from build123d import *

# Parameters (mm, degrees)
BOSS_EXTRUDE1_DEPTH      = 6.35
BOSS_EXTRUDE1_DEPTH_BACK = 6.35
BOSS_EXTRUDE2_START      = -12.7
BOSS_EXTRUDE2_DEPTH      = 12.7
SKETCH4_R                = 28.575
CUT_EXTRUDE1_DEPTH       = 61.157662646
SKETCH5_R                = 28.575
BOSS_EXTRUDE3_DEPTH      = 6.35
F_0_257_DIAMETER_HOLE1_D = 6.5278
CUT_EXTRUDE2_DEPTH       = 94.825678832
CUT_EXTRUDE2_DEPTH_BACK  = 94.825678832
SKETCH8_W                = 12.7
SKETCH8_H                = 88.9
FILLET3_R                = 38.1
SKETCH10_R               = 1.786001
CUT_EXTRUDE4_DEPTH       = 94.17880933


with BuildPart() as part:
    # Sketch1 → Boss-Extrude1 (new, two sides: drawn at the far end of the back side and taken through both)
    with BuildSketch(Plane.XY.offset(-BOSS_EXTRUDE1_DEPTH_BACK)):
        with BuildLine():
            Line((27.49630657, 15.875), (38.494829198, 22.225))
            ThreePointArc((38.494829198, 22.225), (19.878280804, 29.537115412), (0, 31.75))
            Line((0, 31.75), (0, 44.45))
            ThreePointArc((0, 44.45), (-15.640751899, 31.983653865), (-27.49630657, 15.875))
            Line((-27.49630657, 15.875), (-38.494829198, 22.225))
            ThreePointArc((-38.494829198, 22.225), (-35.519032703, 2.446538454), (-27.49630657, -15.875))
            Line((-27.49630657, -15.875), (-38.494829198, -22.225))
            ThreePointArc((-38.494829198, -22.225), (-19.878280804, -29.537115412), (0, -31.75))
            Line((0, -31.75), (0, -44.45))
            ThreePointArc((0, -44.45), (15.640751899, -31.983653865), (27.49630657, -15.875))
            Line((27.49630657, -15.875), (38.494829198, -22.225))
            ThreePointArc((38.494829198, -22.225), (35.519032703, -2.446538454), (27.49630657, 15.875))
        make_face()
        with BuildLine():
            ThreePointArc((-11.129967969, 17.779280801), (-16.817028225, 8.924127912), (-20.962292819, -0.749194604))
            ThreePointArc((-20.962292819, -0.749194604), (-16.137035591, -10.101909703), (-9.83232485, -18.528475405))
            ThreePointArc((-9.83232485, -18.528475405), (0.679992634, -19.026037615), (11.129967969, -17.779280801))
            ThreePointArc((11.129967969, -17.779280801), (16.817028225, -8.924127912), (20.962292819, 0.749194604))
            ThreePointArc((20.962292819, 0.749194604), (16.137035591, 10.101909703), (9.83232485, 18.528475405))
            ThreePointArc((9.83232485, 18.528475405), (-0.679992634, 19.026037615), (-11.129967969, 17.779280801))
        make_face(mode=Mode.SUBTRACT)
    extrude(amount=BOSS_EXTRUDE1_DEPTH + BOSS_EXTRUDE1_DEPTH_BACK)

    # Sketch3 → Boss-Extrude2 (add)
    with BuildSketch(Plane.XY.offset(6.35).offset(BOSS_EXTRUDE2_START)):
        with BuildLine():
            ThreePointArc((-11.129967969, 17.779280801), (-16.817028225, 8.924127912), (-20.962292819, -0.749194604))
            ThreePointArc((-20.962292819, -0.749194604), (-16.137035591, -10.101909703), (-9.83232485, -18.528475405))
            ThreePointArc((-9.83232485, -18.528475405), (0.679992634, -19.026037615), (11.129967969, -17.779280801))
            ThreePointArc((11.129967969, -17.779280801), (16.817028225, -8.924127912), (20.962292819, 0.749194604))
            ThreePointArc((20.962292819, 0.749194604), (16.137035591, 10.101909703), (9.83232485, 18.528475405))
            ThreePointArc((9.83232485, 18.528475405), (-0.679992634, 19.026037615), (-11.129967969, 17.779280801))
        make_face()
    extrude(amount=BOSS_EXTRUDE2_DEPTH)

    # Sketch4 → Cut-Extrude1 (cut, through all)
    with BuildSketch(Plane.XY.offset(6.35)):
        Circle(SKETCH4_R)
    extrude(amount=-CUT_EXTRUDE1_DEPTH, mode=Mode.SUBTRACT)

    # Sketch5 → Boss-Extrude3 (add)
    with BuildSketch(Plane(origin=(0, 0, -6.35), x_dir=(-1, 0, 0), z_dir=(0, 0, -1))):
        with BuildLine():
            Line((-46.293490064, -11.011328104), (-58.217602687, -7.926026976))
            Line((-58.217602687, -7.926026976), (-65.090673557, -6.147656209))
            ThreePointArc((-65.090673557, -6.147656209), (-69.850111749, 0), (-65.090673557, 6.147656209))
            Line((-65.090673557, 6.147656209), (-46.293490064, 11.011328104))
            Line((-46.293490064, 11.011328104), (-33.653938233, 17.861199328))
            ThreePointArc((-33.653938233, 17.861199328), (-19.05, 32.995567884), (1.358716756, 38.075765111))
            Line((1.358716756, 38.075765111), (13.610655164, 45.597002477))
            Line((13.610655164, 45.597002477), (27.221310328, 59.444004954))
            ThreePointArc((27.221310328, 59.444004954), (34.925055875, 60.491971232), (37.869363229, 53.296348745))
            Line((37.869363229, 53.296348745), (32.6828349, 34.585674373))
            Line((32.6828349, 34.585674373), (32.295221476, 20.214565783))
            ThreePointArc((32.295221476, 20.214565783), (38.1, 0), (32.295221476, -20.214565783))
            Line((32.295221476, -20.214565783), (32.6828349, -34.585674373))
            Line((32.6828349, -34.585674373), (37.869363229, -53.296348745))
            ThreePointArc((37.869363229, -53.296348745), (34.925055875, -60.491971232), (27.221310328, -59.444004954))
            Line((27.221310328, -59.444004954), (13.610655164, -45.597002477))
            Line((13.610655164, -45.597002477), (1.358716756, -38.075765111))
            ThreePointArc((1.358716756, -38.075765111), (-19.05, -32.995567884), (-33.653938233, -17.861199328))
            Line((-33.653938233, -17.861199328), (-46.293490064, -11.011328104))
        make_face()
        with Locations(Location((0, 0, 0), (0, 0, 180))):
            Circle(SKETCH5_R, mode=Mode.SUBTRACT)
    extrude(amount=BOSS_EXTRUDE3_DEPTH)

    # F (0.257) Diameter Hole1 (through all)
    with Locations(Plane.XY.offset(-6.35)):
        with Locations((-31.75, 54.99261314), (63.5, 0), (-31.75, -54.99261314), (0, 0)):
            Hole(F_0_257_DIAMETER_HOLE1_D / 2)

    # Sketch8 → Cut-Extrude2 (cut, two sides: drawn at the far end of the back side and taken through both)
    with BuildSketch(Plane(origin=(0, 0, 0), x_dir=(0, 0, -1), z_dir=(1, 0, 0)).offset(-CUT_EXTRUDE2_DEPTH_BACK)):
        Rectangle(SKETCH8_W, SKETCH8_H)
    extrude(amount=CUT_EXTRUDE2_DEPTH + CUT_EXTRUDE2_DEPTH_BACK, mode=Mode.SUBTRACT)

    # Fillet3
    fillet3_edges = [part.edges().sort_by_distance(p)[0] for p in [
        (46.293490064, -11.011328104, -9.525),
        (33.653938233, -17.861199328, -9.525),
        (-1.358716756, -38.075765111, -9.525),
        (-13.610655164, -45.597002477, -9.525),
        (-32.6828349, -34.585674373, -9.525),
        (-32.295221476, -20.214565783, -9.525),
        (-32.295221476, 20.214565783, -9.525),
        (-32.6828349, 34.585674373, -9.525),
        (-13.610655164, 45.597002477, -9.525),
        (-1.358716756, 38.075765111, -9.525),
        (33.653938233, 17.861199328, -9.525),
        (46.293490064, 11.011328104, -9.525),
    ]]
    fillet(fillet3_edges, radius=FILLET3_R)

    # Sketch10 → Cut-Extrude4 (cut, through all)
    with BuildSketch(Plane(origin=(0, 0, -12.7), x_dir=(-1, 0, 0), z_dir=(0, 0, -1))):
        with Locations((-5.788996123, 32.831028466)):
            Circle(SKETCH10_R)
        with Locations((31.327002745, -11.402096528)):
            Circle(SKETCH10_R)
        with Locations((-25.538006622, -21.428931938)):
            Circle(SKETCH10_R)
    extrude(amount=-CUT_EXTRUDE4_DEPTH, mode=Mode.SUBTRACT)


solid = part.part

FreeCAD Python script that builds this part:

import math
import FreeCAD as App
import Part
import Sketcher

V = App.Vector
Q = App.Units.Quantity


def edges_at(feature, points):
    """Names of the edges that pass closest to the given points."""
    edges = feature.Shape.Edges
    near = lambda p: min(range(len(edges)), key=lambda i: edges[i].distToShape(Part.Vertex(*p))[0])
    return sorted({f"Edge{near(p) + 1}" for p in points})

doc = App.newDocument("Part")
body = doc.addObject("PartDesign::Body", "Body")

# Sketch on XY plane
sketch1 = doc.addObject("Sketcher::SketchObject", "Sketch")
body.addObject(sketch1)
sketch1.AttachmentSupport = (doc.XY_Plane, [""])
sketch1.MapMode = "FlatFace"
sketch1.addGeometry([
    Part.LineSegment(V(27, 16, 0), V(38, 22, 0)),  # 0
    Part.ArcOfCircle(Part.Circle(V(2, -44, 0), V(0, 0, 1), 76), math.radians(61), math.radians(91)),  # 1
    Part.LineSegment(V(0, 32, 0), V(0, 44, 0)),  # 2
    Part.ArcOfCircle(Part.Circle(V(39, -21, 0), V(0, 0, 1), 76), math.radians(121), math.radians(151)),  # 3
    Part.LineSegment(V(-27, 16, 0), V(-38, 22, 0)),  # 4
    Part.ArcOfCircle(Part.Circle(V(38, 24, 0), V(0, 0, 1), 76), math.radians(-179), math.radians(-149)),  # 5
    Part.LineSegment(V(-27, -16, 0), V(-38, -22, 0)),  # 6
    Part.ArcOfCircle(Part.Circle(V(-2, 44, 0), V(0, 0, 1), 76), math.radians(-119), math.radians(-89)),  # 7
    Part.LineSegment(V(0, -32, 0), V(0, -44, 0)),  # 8
    Part.ArcOfCircle(Part.Circle(V(-39, 21, 0), V(0, 0, 1), 76), math.radians(-59), math.radians(-29)),  # 9
    Part.LineSegment(V(27, -16, 0), V(38, -22, 0)),  # 10
    Part.ArcOfCircle(Part.Circle(V(-38, -24, 0), V(0, 0, 1), 76), math.radians(1), math.radians(31)),  # 11
    Part.ArcOfCircle(Part.Circle(V(39, -21, 0), V(0, 0, 1), 63), math.radians(142.53), math.radians(161.56)),  # 12
    Part.ArcOfCircle(Part.Circle(V(2, -44, 0), V(0, 0, 1), 63), math.radians(82.53), math.radians(101.56)),  # 13
    Part.ArcOfCircle(Part.Circle(V(-38, -24, 0), V(0, 0, 1), 63), math.radians(22.53), math.radians(41.56)),  # 14
    Part.ArcOfCircle(Part.Circle(V(-39, 21, 0), V(0, 0, 1), 63), math.radians(-37.47), math.radians(-18.44)),  # 15
    Part.ArcOfCircle(Part.Circle(V(-2, 44, 0), V(0, 0, 1), 63), math.radians(-97.47), math.radians(-78.44)),  # 16
    Part.ArcOfCircle(Part.Circle(V(38, 24, 0), V(0, 0, 1), 63), math.radians(-157.47), math.radians(-138.44)),  # 17
], False)
sketch1.addConstraint([
    Sketcher.Constraint("Coincident", 0, 2, 1, 1),
    Sketcher.Constraint("Coincident", 1, 2, 2, 1),
    Sketcher.Constraint("Coincident", 2, 2, 3, 1),
    Sketcher.Constraint("Coincident", 3, 2, 4, 1),
    Sketcher.Constraint("Coincident", 4, 2, 5, 1),
    Sketcher.Constraint("Coincident", 5, 2, 6, 1),
    Sketcher.Constraint("Coincident", 6, 2, 7, 1),
    Sketcher.Constraint("Coincident", 7, 2, 8, 1),
    Sketcher.Constraint("Coincident", 8, 2, 9, 1),
    Sketcher.Constraint("Coincident", 9, 2, 10, 1),
    Sketcher.Constraint("Coincident", 10, 2, 11, 1),
    Sketcher.Constraint("Coincident", 11, 2, 0, 1),
    Sketcher.Constraint("Coincident", 12, 1, 13, 2),
    Sketcher.Constraint("Coincident", 13, 1, 14, 2),
    Sketcher.Constraint("Coincident", 14, 1, 15, 2),
    Sketcher.Constraint("Coincident", 15, 1, 16, 2),
    Sketcher.Constraint("Coincident", 16, 1, 17, 2),
    Sketcher.Constraint("Coincident", 17, 1, 12, 2),
    Sketcher.Constraint("Vertical", 2),
    Sketcher.Constraint("Vertical", 8),
    Sketcher.Constraint("Coincident", 12, 3, 3, 3),
    Sketcher.Constraint("Coincident", 13, 3, 1, 3),
    Sketcher.Constraint("Coincident", 14, 3, 11, 3),
    Sketcher.Constraint("Coincident", 15, 3, 9, 3),
    Sketcher.Constraint("Coincident", 16, 3, 7, 3),
    Sketcher.Constraint("Coincident", 17, 3, 5, 3),
    Sketcher.Constraint("Equal", 1, 3),
    Sketcher.Constraint("Equal", 3, 5),
    Sketcher.Constraint("Equal", 5, 7),
    Sketcher.Constraint("Equal", 7, 9),
    Sketcher.Constraint("Equal", 9, 11),
    Sketcher.Constraint("Equal", 12, 13),
    Sketcher.Constraint("Equal", 13, 14),
    Sketcher.Constraint("Equal", 14, 15),
    Sketcher.Constraint("Equal", 15, 16),
    Sketcher.Constraint("Equal", 16, 17),
    Sketcher.Constraint("Symmetric", 1, 3, 7, 3, -1, 1),
    Sketcher.Constraint("Symmetric", 3, 3, 9, 3, -1, 1),
    Sketcher.Constraint("Symmetric", 5, 3, 11, 3, -1, 1),
    Sketcher.Constraint("Symmetric", 0, 2, 4, 2, -2),
    Sketcher.Constraint("Symmetric", 5, 2, 9, 2, -2),
    Sketcher.Constraint("Symmetric", 6, 2, 10, 2, -2),
    Sketcher.Constraint("Symmetric", 1, 2, 7, 2, -1),
    Sketcher.Constraint("Parallel", 0, 6),
    Sketcher.Constraint("Parallel", 4, 10),
    Sketcher.Constraint("DistanceY", 2, 1, 2, 2, Q("0.5 in")),
    Sketcher.Constraint("Angle", 0, Q("30 deg")),
    Sketcher.Constraint("Distance", 0, Q("0.5 in")),
    Sketcher.Constraint("DistanceY", 6, 2, 3, 2, Q("1.5 in")),
    Sketcher.Constraint("DistanceY", -1, 1, 1, 2, Q("1.25 in")),
    Sketcher.Constraint("Radius", 1, 76.154973),
    Sketcher.Constraint("Radius", 12, 63.454973),
    Sketcher.Constraint("DistanceX", -1, 1, 5, 3, 37.648299),
])
pad1 = doc.addObject("PartDesign::Pad", "Pad")
body.addObject(pad1)
pad1.Profile = sketch1
pad1.Type = "TwoLengths"
pad1.Length = Q("0.25 in")
pad1.Length2 = Q("0.25 in")

# Sketch on XY plane
sketch2 = doc.addObject("Sketcher::SketchObject", "Sketch001")
body.addObject(sketch2)
sketch2.AttachmentSupport = (doc.XY_Plane, [""])
sketch2.MapMode = "FlatFace"
sketch2.AttachmentOffset = App.Placement(V(0, 0, -0.25 * 25.4), App.Rotation())
sketch2.addGeometry([
    Part.ArcOfCircle(Part.Circle(V(39, -21, 0), V(0, 0, 1), 63), math.radians(142.53), math.radians(161.56)),  # 0
    Part.ArcOfCircle(Part.Circle(V(38, 24, 0), V(0, 0, 1), 63), math.radians(-157.47), math.radians(-138.44)),  # 1
    Part.ArcOfCircle(Part.Circle(V(-2, 44, 0), V(0, 0, 1), 63), math.radians(-97.47), math.radians(-78.44)),  # 2
    Part.ArcOfCircle(Part.Circle(V(-39, 21, 0), V(0, 0, 1), 63), math.radians(-37.47), math.radians(-18.44)),  # 3
    Part.ArcOfCircle(Part.Circle(V(-38, -24, 0), V(0, 0, 1), 63), math.radians(22.53), math.radians(41.56)),  # 4
    Part.ArcOfCircle(Part.Circle(V(2, -44, 0), V(0, 0, 1), 63), math.radians(82.53), math.radians(101.56)),  # 5
], False)
sketch2.addConstraint([
    Sketcher.Constraint("Coincident", 0, 2, 1, 1),
    Sketcher.Constraint("Coincident", 1, 2, 2, 1),
    Sketcher.Constraint("Coincident", 2, 2, 3, 1),
    Sketcher.Constraint("Coincident", 3, 2, 4, 1),
    Sketcher.Constraint("Coincident", 4, 2, 5, 1),
    Sketcher.Constraint("Coincident", 5, 2, 0, 1),
    Sketcher.Constraint("Equal", 0, 1),
    Sketcher.Constraint("Equal", 1, 2),
    Sketcher.Constraint("Equal", 2, 3),
    Sketcher.Constraint("Equal", 3, 4),
    Sketcher.Constraint("Equal", 4, 5),
    Sketcher.Constraint("Symmetric", 0, 3, 3, 3, -1, 1),
    Sketcher.Constraint("Symmetric", 1, 3, 4, 3, -1, 1),
    Sketcher.Constraint("Symmetric", 2, 3, 5, 3, -1, 1),
    Sketcher.Constraint("Radius", 0, 63.454973),
    Sketcher.Constraint("DistanceX", -1, 1, 1, 3, 37.648299),
    Sketcher.Constraint("DistanceX", 3, 3, 2, 3, 37.648299),
    Sketcher.Constraint("DistanceY", 0, 3, -1, 1, 20.820319),
    Sketcher.Constraint("DistanceY", 2, 2, -1, 1, 17.779281),
    Sketcher.Constraint("DistanceY", 1, 3, 2, 3, 20.820319),
    Sketcher.Constraint("DistanceX", 4, 3, 2, 3, 36.061851),
])
pad2 = doc.addObject("PartDesign::Pad", "Pad001")
body.addObject(pad2)
pad2.Profile = sketch2
pad2.Length = Q("0.5 in")

# Sketch on XY plane
sketch3 = doc.addObject("Sketcher::SketchObject", "Sketch002")
body.addObject(sketch3)
sketch3.AttachmentSupport = (doc.XY_Plane, [""])
sketch3.MapMode = "FlatFace"
sketch3.AttachmentOffset = App.Placement(V(0, 0, 0.25 * 25.4), App.Rotation())
sketch3.addGeometry(Part.Circle(V(0, 0, 0), V(0, 0, 1), 29), False)
sketch3.addConstraint([
    Sketcher.Constraint("Coincident", 0, 3, -1, 1),
    Sketcher.Constraint("Diameter", 0, Q("2.25 in")),
])
pocket1 = doc.addObject("PartDesign::Pocket", "Pocket")
body.addObject(pocket1)
pocket1.Profile = sketch3
pocket1.Type = "ThroughAll"

# Sketch on XY plane
sketch4 = doc.addObject("Sketcher::SketchObject", "Sketch003")
body.addObject(sketch4)
sketch4.AttachmentSupport = (doc.XY_Plane, [""])
sketch4.MapMode = "FlatFace"
sketch4.AttachmentOffset = App.Placement(V(0, 0, -0.25 * 25.4), App.Rotation())
sketch4.addGeometry([
    Part.LineSegment(V(58, -8, 0), V(46, -11, 0)),  # 0
    Part.LineSegment(V(46, -11, 0), V(34, -18, 0)),  # 1
    Part.ArcOfCircle(Part.Circle(V(0, 0, 0), V(0, 0, 1), 38), math.radians(-92), math.radians(-28)),  # 2
    Part.LineSegment(V(-1, -38, 0), V(-14, -46, 0)),  # 3
    Part.LineSegment(V(-14, -46, 0), V(-27, -59, 0)),  # 4
    Part.ArcOfCircle(Part.Circle(V(-32, -55, 0), V(0, 0, 1), 6), math.radians(165), math.radians(315)),  # 5
    Part.LineSegment(V(-38, -53, 0), V(-33, -35, 0)),  # 6
    Part.LineSegment(V(-33, -35, 0), V(-32, -20, 0)),  # 7
    Part.ArcOfCircle(Part.Circle(V(0, 0, 0), V(0, 0, 1), 38), math.radians(148), math.radians(212)),  # 8
    Part.LineSegment(V(-32, 20, 0), V(-33, 35, 0)),  # 9
    Part.LineSegment(V(-33, 35, 0), V(-38, 53, 0)),  # 10
    Part.ArcOfCircle(Part.Circle(V(-32, 55, 0), V(0, 0, 1), 6), math.radians(45), math.radians(195)),  # 11
    Part.LineSegment(V(-27, 59, 0), V(-14, 46, 0)),  # 12
    Part.LineSegment(V(-14, 46, 0), V(-1, 38, 0)),  # 13
    Part.ArcOfCircle(Part.Circle(V(0, 0, 0), V(0, 0, 1), 38), math.radians(28), math.radians(92)),  # 14
    Part.LineSegment(V(34, 18, 0), V(46, 11, 0)),  # 15
    Part.LineSegment(V(46, 11, 0), V(65, 6, 0)),  # 16
    Part.ArcOfCircle(Part.Circle(V(64, 0, 0), V(0, 0, 1), 6), math.radians(-75), math.radians(75)),  # 17
    Part.LineSegment(V(65, -6, 0), V(58, -8, 0)),  # 18
    Part.Circle(V(0, 0, 0), V(0, 0, 1), 29),  # 19
], False)
sketch4.addConstraint([
    Sketcher.Constraint("Coincident", 0, 2, 1, 1),
    Sketcher.Constraint("Coincident", 1, 2, 2, 2),
    Sketcher.Constraint("Coincident", 2, 1, 3, 1),
    Sketcher.Constraint("Coincident", 3, 2, 4, 1),
    Sketcher.Constraint("Tangent", 4, 2, 5, 2),
    Sketcher.Constraint("Tangent", 5, 1, 6, 1),
    Sketcher.Constraint("Coincident", 6, 2, 7, 1),
    Sketcher.Constraint("Coincident", 7, 2, 8, 2),
    Sketcher.Constraint("Coincident", 8, 1, 9, 1),
    Sketcher.Constraint("Coincident", 9, 2, 10, 1),
    Sketcher.Constraint("Tangent", 10, 2, 11, 2),
    Sketcher.Constraint("Tangent", 11, 1, 12, 1),
    Sketcher.Constraint("Coincident", 12, 2, 13, 1),
    Sketcher.Constraint("Coincident", 13, 2, 14, 2),
    Sketcher.Constraint("Coincident", 14, 1, 15, 1),
    Sketcher.Constraint("Coincident", 15, 2, 16, 1),
    Sketcher.Constraint("Tangent", 16, 2, 17, 2),
    Sketcher.Constraint("Tangent", 17, 1, 18, 1),
    Sketcher.Constraint("Coincident", 18, 2, 0, 1),
    Sketcher.Constraint("Coincident", 2, 3, -1, 1),
    Sketcher.Constraint("Coincident", 8, 3, -1, 1),
    Sketcher.Constraint("Coincident", 14, 3, -1, 1),
    Sketcher.Constraint("Coincident", 19, 3, -1, 1),
    Sketcher.Constraint("Equal", 2, 8),
    Sketcher.Constraint("Equal", 5, 11),
    Sketcher.Constraint("Equal", 8, 14),
    Sketcher.Constraint("Equal", 11, 17),
    Sketcher.Constraint("Symmetric", 5, 3, 11, 3, -1),
    Sketcher.Constraint("Symmetric", 6, 2, 9, 2, -1),
    Sketcher.Constraint("Symmetric", 3, 2, 12, 2, -1),
    Sketcher.Constraint("Symmetric", 0, 2, 15, 2, -1),
    Sketcher.Constraint("Symmetric", 16, 2, 17, 1, -1),
    Sketcher.Constraint("Vertical", 7, 2, 8, 1),
    Sketcher.Constraint("Vertical", 2, 1, 13, 2),
    Sketcher.Constraint("Vertical", 1, 2, 14, 1),
    Sketcher.Constraint("Equal", 1, 3),
    Sketcher.Constraint("Equal", 4, 6),
    Sketcher.Constraint("Equal", 3, 7),
    Sketcher.Constraint("Equal", 12, 16),
    Sketcher.Constraint("Radius", 2, Q("1.5 in")),
    Sketcher.Constraint("Diameter", 19, Q("2.25 in")),
    Sketcher.Constraint("DistanceX", -1, 1, 17, 3, Q("2.5 in")),
    Sketcher.Constraint("DistanceX", 5, 3, -1, 1, Q("1.25 in")),
    Sketcher.Constraint("Radius", 5, 6.350112),
    Sketcher.Constraint("Distance", 0, 12.316799),
    Sketcher.Constraint("DistanceY", 1, 2, -1, 1, 17.861199),
    Sketcher.Constraint("DistanceY", 2, 1, 7, 2, 17.861199),
    Sketcher.Constraint("DistanceY", 0, 2, 18, 2, 3.085301),
    Sketcher.Constraint("DistanceX", -1, 1, 0, 2, 46.29349),
    Sketcher.Constraint("DistanceX", 4, 2, -1, 1, 27.22131),
    Sketcher.Constraint("DistanceY", 5, 1, -1, 1, 53.296349),
])
pad3 = doc.addObject("PartDesign::Pad", "Pad002")
body.addObject(pad3)
pad3.Profile = sketch4
pad3.Length = Q("0.25 in")
pad3.Reversed = True

# Sketch on XY plane
sketch5 = doc.addObject("Sketcher::SketchObject", "Sketch004")
body.addObject(sketch5)
sketch5.AttachmentSupport = (doc.XY_Plane, [""])
sketch5.MapMode = "FlatFace"
sketch5.AttachmentOffset = App.Placement(V(0, 0, -0.25 * 25.4), App.Rotation())
sketch5.addGeometry([
    Part.Circle(V(-31.8, 55, 0), V(0, 0, 1), 3.3),
    Part.Circle(V(63.5, 0, 0), V(0, 0, 1), 3.3),
    Part.Circle(V(-31.8, -55, 0), V(0, 0, 1), 3.3),
    Part.Circle(V(0, 0, 0), V(0, 0, 1), 3.3),
], False)
sketch5.addConstraint([
    Sketcher.Constraint("Coincident", 3, 3, -1, 1),
    Sketcher.Constraint("Equal", 0, 1),
    Sketcher.Constraint("Equal", 1, 2),
    Sketcher.Constraint("Equal", 2, 3),
    Sketcher.Constraint("Symmetric", 0, 3, 2, 3, -1),
    Sketcher.Constraint("PointOnObject", 1, 3, -1),
    Sketcher.Constraint("Diameter", 0, Q("0.257 in")),
    Sketcher.Constraint("DistanceX", -1, 1, 1, 3, Q("2.5 in")),
    Sketcher.Constraint("DistanceX", 0, 3, -1, 1, Q("1.25 in")),
    Sketcher.Constraint("DistanceY", -1, 1, 0, 3, 54.992613),
])
doc.recompute()
hole = doc.addObject("PartDesign::Hole", "Hole")
body.addObject(hole)
hole.Profile = sketch5
hole.ThreadType = "None"
hole.Diameter = Q("0.257 in")
hole.DepthType = "ThroughAll"

# Sketch on YZ plane
sketch6 = doc.addObject("Sketcher::SketchObject", "Sketch005")
body.addObject(sketch6)
sketch6.AttachmentSupport = (doc.YZ_Plane, [""])
sketch6.MapMode = "FlatFace"
sketch6.addGeometry([
    Part.LineSegment(V(44, 6, 0), V(-44, 6, 0)),
    Part.LineSegment(V(-44, 6, 0), V(-44, -6, 0)),
    Part.LineSegment(V(-44, -6, 0), V(44, -6, 0)),
    Part.LineSegment(V(44, -6, 0), V(44, 6, 0)),
], False)
sketch6.addConstraint([
    Sketcher.Constraint("Coincident", 0, 2, 1, 1),
    Sketcher.Constraint("Coincident", 1, 2, 2, 1),
    Sketcher.Constraint("Coincident", 2, 2, 3, 1),
    Sketcher.Constraint("Coincident", 3, 2, 0, 1),
    Sketcher.Constraint("Horizontal", 0),
    Sketcher.Constraint("Vertical", 1),
    Sketcher.Constraint("Horizontal", 2),
    Sketcher.Constraint("Vertical", 3),
    Sketcher.Constraint("Symmetric", 0, 2, 2, 2, -1, 1),
    Sketcher.Constraint("DistanceX", 0, 2, 0, 1, Q("3.5 in")),
    Sketcher.Constraint("DistanceY", 1, 2, 1, 1, Q("0.5 in")),
])
pocket2 = doc.addObject("PartDesign::Pocket", "Pocket001")
body.addObject(pocket2)
pocket2.Profile = sketch6
pocket2.Type = "ThroughAll"
pocket2.Midplane = True
doc.recompute()

fillet = doc.addObject("PartDesign::Fillet", "Fillet")
body.addObject(fillet)
fillet.Base = (pocket2, edges_at(pocket2, [
    (46.293, -11.011, -9.525),
    (33.654, -17.861, -9.525),
    (-1.359, -38.076, -9.525),
    (-13.611, -45.597, -9.525),
    (-32.683, -34.586, -9.525),
    (-32.295, -20.215, -9.525),
    (-32.295, 20.215, -9.525),
    (-32.683, 34.586, -9.525),
    (-13.611, 45.597, -9.525),
    (-1.359, 38.076, -9.525),
    (33.654, 17.861, -9.525),
    (46.293, 11.011, -9.525),
]))
fillet.Radius = Q("1.5 in")

# Sketch on XY plane
sketch7 = doc.addObject("Sketcher::SketchObject", "Sketch006")
body.addObject(sketch7)
sketch7.AttachmentSupport = (doc.XY_Plane, [""])
sketch7.MapMode = "FlatFace"
sketch7.AttachmentOffset = App.Placement(V(0, 0, -0.5 * 25.4), App.Rotation())
sketch7.addGeometry([
    Part.Circle(V(5.8, 32.8, 0), V(0, 0, 1), 1.8),
    Part.Circle(V(-31.3, -11.4, 0), V(0, 0, 1), 1.8),
    Part.Circle(V(25.5, -21.4, 0), V(0, 0, 1), 1.8),
], False)
sketch7.addConstraint([
    Sketcher.Constraint("Equal", 0, 1),
    Sketcher.Constraint("Equal", 1, 2),
    Sketcher.Constraint("Diameter", 0, 3.572002),
    Sketcher.Constraint("DistanceX", 1, 3, 0, 3, 37.115999),
    Sketcher.Constraint("DistanceY", -1, 1, 0, 3, 32.831028),
    Sketcher.Constraint("DistanceY", 2, 3, -1, 1, 21.428932),
    Sketcher.Constraint("DistanceX", 1, 3, 2, 3, 56.865009),
    Sketcher.Constraint("DistanceX", -1, 1, 0, 3, 5.788996),
    Sketcher.Constraint("DistanceY", 1, 3, -1, 1, 11.402097),
])
pocket3 = doc.addObject("PartDesign::Pocket", "Pocket002")
body.addObject(pocket3)
pocket3.Profile = sketch7
pocket3.Type = "ThroughAll"
pocket3.Reversed = True

doc.recompute()
